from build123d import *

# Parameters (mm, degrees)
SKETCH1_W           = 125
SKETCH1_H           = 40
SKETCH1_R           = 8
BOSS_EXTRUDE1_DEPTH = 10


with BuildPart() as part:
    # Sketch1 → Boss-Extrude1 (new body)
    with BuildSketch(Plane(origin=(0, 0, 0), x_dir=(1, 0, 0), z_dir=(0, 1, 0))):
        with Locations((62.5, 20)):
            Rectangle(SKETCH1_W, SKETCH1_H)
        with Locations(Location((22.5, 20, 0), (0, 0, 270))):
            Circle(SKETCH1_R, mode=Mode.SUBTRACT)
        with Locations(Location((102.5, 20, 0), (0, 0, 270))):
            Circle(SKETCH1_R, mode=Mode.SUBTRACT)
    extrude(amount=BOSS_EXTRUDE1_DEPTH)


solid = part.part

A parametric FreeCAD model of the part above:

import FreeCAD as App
import Part
import Sketcher

V = App.Vector
Q = App.Units.Quantity

doc = App.newDocument("Part")
body = doc.addObject("PartDesign::Body", "Body")

sketch1 = body.newObject("Sketcher::SketchObject", "Sketch")
sketch1.AttachmentSupport = (doc.getObject("XZ_Plane"), [""])
sketch1.MapMode = "FlatFace"
sketch1.addGeometry(Part.LineSegment(V(0, -40, 0), V(0, 0, 0)), False)
sketch1.addGeometry(Part.LineSegment(V(0, 0, 0), V(125, 0, 0)), False)
sketch1.addGeometry(Part.LineSegment(V(125, 0, 0), V(125, -40, 0)), False)
sketch1.addGeometry(Part.LineSegment(V(125, -40, 0), V(0, -40, 0)), False)
sketch1.addGeometry(Part.Circle(V(22, -20, 0), V(0, 0, 1), 8), False)
sketch1.addGeometry(Part.Circle(V(102, -20, 0), V(0, 0, 1), 8), False)
sketch1.addConstraint(Sketcher.Constraint("Coincident", 0, 2, 1, 1))
sketch1.addConstraint(Sketcher.Constraint("Coincident", 1, 2, 2, 1))
sketch1.addConstraint(Sketcher.Constraint("Coincident", 2, 2, 3, 1))
sketch1.addConstraint(Sketcher.Constraint("Coincident", 3, 2, 0, 1))
sketch1.addConstraint(Sketcher.Constraint("Vertical", 0))
sketch1.addConstraint(Sketcher.Constraint("Horizontal", 1))
sketch1.addConstraint(Sketcher.Constraint("Vertical", 2))
sketch1.addConstraint(Sketcher.Constraint("Horizontal", 3))
sketch1.addConstraint(Sketcher.Constraint("Coincident", 0, 2, -1, 1))
sketch1.addConstraint(Sketcher.Constraint("Equal", 4, 5))
sketch1.addConstraint(Sketcher.Constraint("Horizontal", 4, 3, 5, 3))
sketch1.addConstraint(Sketcher.Constraint("Diameter", 4, Q("16 mm")))
sketch1.addConstraint(Sketcher.Constraint("DistanceX", 1, 1, 1, 2, Q("125 mm")))
sketch1.addConstraint(Sketcher.Constraint("DistanceY", 0, 1, 0, 2, Q("40 mm")))
sketch1.addConstraint(Sketcher.Constraint("DistanceY", 4, 3, -1, 1, Q("20 mm")))
sketch1.addConstraint(Sketcher.Constraint("DistanceX", 4, 3, 5, 3, Q("80 mm")))
sketch1.addConstraint(Sketcher.Constraint("DistanceX", -1, 1, 4, 3, Q("22.5 mm")))
pad1 = body.newObject("PartDesign::Pad", "Pad")
pad1.Profile = sketch1
pad1.Length = 10
pad1.Reversed = True

doc.recompute()
